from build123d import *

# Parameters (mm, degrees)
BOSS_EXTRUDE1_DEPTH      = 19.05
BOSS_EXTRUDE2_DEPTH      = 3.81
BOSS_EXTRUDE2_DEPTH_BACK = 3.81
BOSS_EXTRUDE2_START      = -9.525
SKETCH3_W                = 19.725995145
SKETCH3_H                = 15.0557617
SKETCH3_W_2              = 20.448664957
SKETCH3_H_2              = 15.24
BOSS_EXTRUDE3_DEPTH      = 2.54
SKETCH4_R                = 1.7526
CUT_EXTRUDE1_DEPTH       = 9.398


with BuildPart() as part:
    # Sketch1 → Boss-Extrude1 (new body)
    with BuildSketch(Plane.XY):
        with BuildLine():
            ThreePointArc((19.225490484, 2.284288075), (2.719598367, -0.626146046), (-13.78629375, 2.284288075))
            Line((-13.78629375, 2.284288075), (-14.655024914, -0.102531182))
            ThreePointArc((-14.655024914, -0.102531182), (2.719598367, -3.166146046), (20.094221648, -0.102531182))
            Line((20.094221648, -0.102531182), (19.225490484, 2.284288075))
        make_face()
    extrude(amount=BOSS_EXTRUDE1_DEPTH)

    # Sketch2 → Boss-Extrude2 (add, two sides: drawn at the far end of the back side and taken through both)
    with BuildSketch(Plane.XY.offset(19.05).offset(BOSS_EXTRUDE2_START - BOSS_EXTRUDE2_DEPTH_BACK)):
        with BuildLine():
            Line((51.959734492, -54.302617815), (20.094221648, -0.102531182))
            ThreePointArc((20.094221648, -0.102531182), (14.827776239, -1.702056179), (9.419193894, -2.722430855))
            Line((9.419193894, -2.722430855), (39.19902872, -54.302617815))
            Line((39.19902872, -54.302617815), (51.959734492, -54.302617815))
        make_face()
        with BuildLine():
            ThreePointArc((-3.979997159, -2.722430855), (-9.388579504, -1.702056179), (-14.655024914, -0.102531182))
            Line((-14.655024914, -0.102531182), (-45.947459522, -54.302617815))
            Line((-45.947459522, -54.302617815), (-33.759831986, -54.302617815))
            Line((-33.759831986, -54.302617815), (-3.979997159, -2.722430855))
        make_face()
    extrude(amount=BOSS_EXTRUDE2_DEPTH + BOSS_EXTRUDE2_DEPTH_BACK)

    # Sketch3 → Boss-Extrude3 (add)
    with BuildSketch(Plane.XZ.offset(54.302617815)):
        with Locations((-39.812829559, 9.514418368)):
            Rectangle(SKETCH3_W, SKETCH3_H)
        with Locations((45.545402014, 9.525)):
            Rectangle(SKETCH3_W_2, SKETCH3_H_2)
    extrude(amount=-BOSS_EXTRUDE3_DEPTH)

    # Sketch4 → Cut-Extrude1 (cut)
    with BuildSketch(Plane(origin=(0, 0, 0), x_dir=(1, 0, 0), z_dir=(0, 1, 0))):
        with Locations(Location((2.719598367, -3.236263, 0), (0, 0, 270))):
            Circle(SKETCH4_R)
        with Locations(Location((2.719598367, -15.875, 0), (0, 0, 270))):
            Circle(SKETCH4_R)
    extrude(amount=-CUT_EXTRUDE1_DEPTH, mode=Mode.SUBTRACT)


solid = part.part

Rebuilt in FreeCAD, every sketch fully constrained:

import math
import FreeCAD as App
import Part
import Sketcher

V = App.Vector
Q = App.Units.Quantity


def add_polygon(sketch, points):
    """Adds a closed chain of lines whose ends are joined by coincident constraints."""
    first, n = sketch.GeometryCount, len(points)
    for a, b in zip(points, points[1:] + points[:1]):
        sketch.addGeometry(Part.LineSegment(App.Vector(*a, 0), App.Vector(*b, 0)), False)
    for i in range(n):
        sketch.addConstraint(Sketcher.Constraint("Coincident", first + i, 2, first + (i + 1) % n, 1))

doc = App.newDocument("Part")
body = doc.addObject("PartDesign::Body", "Body")

sketch1 = doc.addObject("Sketcher::SketchObject", "Sketch")
body.addObject(sketch1)
sketch1.AttachmentSupport = (doc.XY_Plane, [""])
sketch1.MapMode = "FlatFace"
sketch1.addGeometry([
    Part.ArcOfCircle(Part.Circle(V(2.7, 47.6, 0), V(0, 0, 1), 48.3), math.radians(-110), math.radians(-70)),
    Part.LineSegment(V(-13.8, 2.3, 0), V(-14.7, -0.1, 0)),
    Part.ArcOfCircle(Part.Circle(V(2.7, 47.6, 0), V(0, 0, 1), 50.8), math.radians(-110), math.radians(-70)),
    Part.LineSegment(V(20.1, -0.1, 0), V(19.2, 2.3, 0)),
], False)
sketch1.addConstraint([
    Sketcher.Constraint("Coincident", 0, 1, 1, 1),
    Sketcher.Constraint("Coincident", 1, 2, 2, 1),
    Sketcher.Constraint("Coincident", 2, 2, 3, 1),
    Sketcher.Constraint("Coincident", 3, 2, 0, 2),
    Sketcher.Constraint("Coincident", 2, 3, 0, 3),
    Sketcher.Constraint("Horizontal", 1, 2, 2, 2),
    Sketcher.Constraint("Horizontal", 0, 1, 3, 2),
    Sketcher.Constraint("Radius", 2, Q("2 in")),
    Sketcher.Constraint("Radius", 0, Q("1.9 in")),
    Sketcher.Constraint("Angle", 1, Q("-110 deg")),
    Sketcher.Constraint("DistanceX", -1, 1, 0, 3, Q("2.719598 mm")),
    Sketcher.Constraint("DistanceY", -1, 1, 0, 1, Q("2.284288 mm")),
    Sketcher.Constraint("DistanceX", -1, 1, 2, 2, Q("20.094222 mm")),
])
pad1 = doc.addObject("PartDesign::Pad", "Pad")
body.addObject(pad1)
pad1.Profile = sketch1
pad1.Length = Q("0.75 in")

sketch2 = doc.addObject("Sketcher::SketchObject", "Sketch001")
body.addObject(sketch2)
sketch2.AttachmentSupport = (doc.XY_Plane, [""])
sketch2.MapMode = "FlatFace"
sketch2.AttachmentOffset = App.Placement(V(0, 0, 0.375 * 25.4), App.Rotation())
sketch2.addGeometry([
    Part.LineSegment(V(52, -54, 0), V(20, 0, 0)),
    Part.ArcOfCircle(Part.Circle(V(3, 48, 0), V(0, 0, 1), 51), math.radians(-82.42), math.radians(-70)),
    Part.LineSegment(V(9, -3, 0), V(39, -54, 0)),
    Part.LineSegment(V(39, -54, 0), V(52, -54, 0)),
    Part.ArcOfCircle(Part.Circle(V(3, 48, 0), V(0, 0, 1), 51), math.radians(-110), math.radians(-97.58)),
    Part.LineSegment(V(-15, 0, 0), V(-46, -54, 0)),
    Part.LineSegment(V(-46, -54, 0), V(-34, -54, 0)),
    Part.LineSegment(V(-34, -54, 0), V(-4, -3, 0)),
], False)
sketch2.addConstraint([
    Sketcher.Constraint("Coincident", 0, 2, 1, 2),
    Sketcher.Constraint("Coincident", 1, 1, 2, 1),
    Sketcher.Constraint("Coincident", 2, 2, 3, 1),
    Sketcher.Constraint("Coincident", 3, 2, 0, 1),
    Sketcher.Constraint("Coincident", 4, 1, 5, 1),
    Sketcher.Constraint("Coincident", 5, 2, 6, 1),
    Sketcher.Constraint("Coincident", 6, 2, 7, 1),
    Sketcher.Constraint("Coincident", 7, 2, 4, 2),
    Sketcher.Constraint("Horizontal", 3),
    Sketcher.Constraint("Horizontal", 6),
    Sketcher.Constraint("Coincident", 4, 3, 1, 3),
    Sketcher.Constraint("Equal", 1, 4),
    Sketcher.Constraint("Parallel", 5, 7),
    Sketcher.Constraint("Horizontal", 0, 2, 4, 1),
    Sketcher.Constraint("Horizontal", 3, 2, 5, 2),
    Sketcher.Constraint("Horizontal", 1, 1, 7, 2),
    Sketcher.Constraint("Equal", 2, 7),
    Sketcher.Constraint("Radius", 1, Q("2 in")),
    Sketcher.Constraint("Angle", 2, Q("-60 deg")),
    Sketcher.Constraint("DistanceX", -1, 1, 1, 3, Q("2.719598 mm")),
    Sketcher.Constraint("DistanceY", 1, 1, 0, 2, Q("2.6199 mm")),
    Sketcher.Constraint("Distance", 2, Q("59.55967 mm")),
    Sketcher.Constraint("DistanceX", 3, 1, 3, 2, Q("12.760706 mm")),
    Sketcher.Constraint("DistanceX", 6, 1, 6, 2, Q("12.187628 mm")),
    Sketcher.Constraint("DistanceY", 0, 2, -1, 1, Q("0.102531 mm")),
])
pad2 = doc.addObject("PartDesign::Pad", "Pad001")
body.addObject(pad2)
pad2.Profile = sketch2
pad2.Type = "TwoLengths"
pad2.Length = Q("0.15 in")
pad2.Length2 = Q("0.15 in")

sketch3 = doc.addObject("Sketcher::SketchObject", "Sketch002")
body.addObject(sketch3)
sketch3.AttachmentSupport = (doc.XZ_Plane, [""])
sketch3.MapMode = "FlatFace"
sketch3.AttachmentOffset = App.Placement(V(0, 0, 54.302618), App.Rotation())
add_polygon(sketch3, [(-50, 17), (-50, 2), (-30, 2), (-30, 17)])
add_polygon(sketch3, [(35, 17), (35, 2), (56, 2), (56, 17)])
sketch3.addConstraint([
    Sketcher.Constraint("Vertical", 0),
    Sketcher.Constraint("Horizontal", 1),
    Sketcher.Constraint("Vertical", 2),
    Sketcher.Constraint("Horizontal", 3),
    Sketcher.Constraint("Vertical", 4),
    Sketcher.Constraint("Horizontal", 5),
    Sketcher.Constraint("Vertical", 6),
    Sketcher.Constraint("Horizontal", 7),
    Sketcher.Constraint("DistanceY", 4, 2, 4, 1, Q("0.6 in")),
    Sketcher.Constraint("DistanceY", -1, 1, 4, 2, Q("0.075 in")),
    Sketcher.Constraint("DistanceX", 0, 2, 5, 2, Q("4.1514001 in")),
    Sketcher.Constraint("DistanceY", 0, 2, 0, 1, Q("15.055762 mm")),
    Sketcher.Constraint("DistanceY", -1, 1, 2, 2, Q("17.042299 mm")),
    Sketcher.Constraint("DistanceX", 1, 2, 4, 2, Q("65.270902 mm")),
    Sketcher.Constraint("DistanceX", 1, 1, 1, 2, Q("19.725995 mm")),
    Sketcher.Constraint("DistanceX", 1, 2, -1, 1, Q("29.949832 mm")),
])
pad3 = doc.addObject("PartDesign::Pad", "Pad002")
body.addObject(pad3)
pad3.Profile = sketch3
pad3.Length = Q("0.1 in")
pad3.Reversed = True

sketch4 = doc.addObject("Sketcher::SketchObject", "Sketch003")
body.addObject(sketch4)
sketch4.AttachmentSupport = (doc.XZ_Plane, [""])
sketch4.MapMode = "FlatFace"
sketch4.addGeometry([
    Part.Circle(V(2.7, 3.2, 0), V(0, 0, 1), 1.8),
    Part.Circle(V(2.7, 15.9, 0), V(0, 0, 1), 1.8),
], False)
sketch4.addConstraint([
    Sketcher.Constraint("Equal", 0, 1),
    Sketcher.Constraint("Vertical", 0, 3, 1, 3),
    Sketcher.Constraint("Diameter", 0, Q("0.138 in")),
    Sketcher.Constraint("DistanceY", -1, 1, 1, 3, Q("0.625 in")),
    Sketcher.Constraint("DistanceX", -1, 1, 0, 3, Q("2.719598 mm")),
    Sketcher.Constraint("DistanceY", -1, 1, 0, 3, Q("3.236263 mm")),
])
pocket1 = doc.addObject("PartDesign::Pocket", "Pocket")
body.addObject(pocket1)
pocket1.Profile = sketch4
pocket1.Length = Q("0.37 in")
pocket1.Reversed = True

doc.recompute()
